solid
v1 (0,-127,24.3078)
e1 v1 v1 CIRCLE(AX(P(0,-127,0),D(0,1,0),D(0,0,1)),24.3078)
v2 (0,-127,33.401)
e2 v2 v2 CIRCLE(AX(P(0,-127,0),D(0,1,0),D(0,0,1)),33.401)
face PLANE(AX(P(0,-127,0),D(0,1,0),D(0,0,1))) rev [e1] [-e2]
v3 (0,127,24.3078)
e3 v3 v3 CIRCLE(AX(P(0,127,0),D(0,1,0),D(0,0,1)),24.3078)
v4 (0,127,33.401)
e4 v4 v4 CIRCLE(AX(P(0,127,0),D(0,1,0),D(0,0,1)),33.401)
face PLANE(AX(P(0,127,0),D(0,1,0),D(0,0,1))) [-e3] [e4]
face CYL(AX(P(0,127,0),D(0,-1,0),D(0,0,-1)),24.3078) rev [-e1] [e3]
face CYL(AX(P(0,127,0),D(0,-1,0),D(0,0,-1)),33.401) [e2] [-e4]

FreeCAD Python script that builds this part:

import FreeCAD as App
import Part
import Sketcher

V = App.Vector
Q = App.Units.Quantity

doc = App.newDocument("Part")
body = doc.addObject("PartDesign::Body", "Body")

sketch1 = doc.addObject("Sketcher::SketchObject", "Sketch")
body.addObject(sketch1)
sketch1.AttachmentSupport = (doc.XZ_Plane, [""])
sketch1.MapMode = "FlatFace"
sketch1.addGeometry([
    Part.Circle(V(0, 0, 0), V(0, 0, 1), 33),
    Part.Circle(V(0, 0, 0), V(0, 0, 1), 24),
], False)
sketch1.addConstraint([
    Sketcher.Constraint("Coincident", 0, 3, -1, 1),
    Sketcher.Constraint("Coincident", 1, 3, -1, 1),
    Sketcher.Constraint("Diameter", 0, Q("2.63 in")),
    Sketcher.Constraint("Diameter", 1, Q("1.914 in")),
])
pad1 = doc.addObject("PartDesign::Pad", "Pad")
body.addObject(pad1)
pad1.Profile = sketch1
pad1.Length = Q("10 in")
pad1.Midplane = True

doc.recompute()
